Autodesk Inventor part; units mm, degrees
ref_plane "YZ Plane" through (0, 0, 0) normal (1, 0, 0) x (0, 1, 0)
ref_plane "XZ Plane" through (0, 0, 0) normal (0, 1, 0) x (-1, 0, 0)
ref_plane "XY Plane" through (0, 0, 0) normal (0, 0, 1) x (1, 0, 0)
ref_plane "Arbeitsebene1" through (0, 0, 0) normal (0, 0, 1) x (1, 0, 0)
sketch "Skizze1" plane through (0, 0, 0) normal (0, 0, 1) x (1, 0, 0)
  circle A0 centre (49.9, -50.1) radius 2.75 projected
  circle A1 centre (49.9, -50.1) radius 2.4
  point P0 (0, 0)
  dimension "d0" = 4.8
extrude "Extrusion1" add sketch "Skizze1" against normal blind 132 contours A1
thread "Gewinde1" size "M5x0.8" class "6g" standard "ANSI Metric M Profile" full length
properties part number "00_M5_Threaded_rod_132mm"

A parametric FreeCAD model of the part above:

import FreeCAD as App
import Part
import Sketcher

V = App.Vector

doc = App.newDocument("Part")
body = doc.addObject("PartDesign::Body", "Body")

sketch1 = body.newObject("Sketcher::SketchObject", "Sketch")
sketch1.AttachmentSupport = (doc.getObject("XY_Plane"), [""])
sketch1.MapMode = "FlatFace"
sketch1.addGeometry(Part.Circle(V(49.9, -50.1, 0), V(0, 0, 1), 2.4), False)
sketch1.addConstraint(Sketcher.Constraint("Diameter", 0, 4.8))
sketch1.addConstraint(Sketcher.Constraint("DistanceX", -1, 1, 0, 3, 49.9))
sketch1.addConstraint(Sketcher.Constraint("DistanceY", 0, 3, -1, 1, 50.1))
pad1 = body.newObject("PartDesign::Pad", "Pad")
pad1.Profile = sketch1
pad1.Length = 132
pad1.Reversed = True

doc.recompute()
